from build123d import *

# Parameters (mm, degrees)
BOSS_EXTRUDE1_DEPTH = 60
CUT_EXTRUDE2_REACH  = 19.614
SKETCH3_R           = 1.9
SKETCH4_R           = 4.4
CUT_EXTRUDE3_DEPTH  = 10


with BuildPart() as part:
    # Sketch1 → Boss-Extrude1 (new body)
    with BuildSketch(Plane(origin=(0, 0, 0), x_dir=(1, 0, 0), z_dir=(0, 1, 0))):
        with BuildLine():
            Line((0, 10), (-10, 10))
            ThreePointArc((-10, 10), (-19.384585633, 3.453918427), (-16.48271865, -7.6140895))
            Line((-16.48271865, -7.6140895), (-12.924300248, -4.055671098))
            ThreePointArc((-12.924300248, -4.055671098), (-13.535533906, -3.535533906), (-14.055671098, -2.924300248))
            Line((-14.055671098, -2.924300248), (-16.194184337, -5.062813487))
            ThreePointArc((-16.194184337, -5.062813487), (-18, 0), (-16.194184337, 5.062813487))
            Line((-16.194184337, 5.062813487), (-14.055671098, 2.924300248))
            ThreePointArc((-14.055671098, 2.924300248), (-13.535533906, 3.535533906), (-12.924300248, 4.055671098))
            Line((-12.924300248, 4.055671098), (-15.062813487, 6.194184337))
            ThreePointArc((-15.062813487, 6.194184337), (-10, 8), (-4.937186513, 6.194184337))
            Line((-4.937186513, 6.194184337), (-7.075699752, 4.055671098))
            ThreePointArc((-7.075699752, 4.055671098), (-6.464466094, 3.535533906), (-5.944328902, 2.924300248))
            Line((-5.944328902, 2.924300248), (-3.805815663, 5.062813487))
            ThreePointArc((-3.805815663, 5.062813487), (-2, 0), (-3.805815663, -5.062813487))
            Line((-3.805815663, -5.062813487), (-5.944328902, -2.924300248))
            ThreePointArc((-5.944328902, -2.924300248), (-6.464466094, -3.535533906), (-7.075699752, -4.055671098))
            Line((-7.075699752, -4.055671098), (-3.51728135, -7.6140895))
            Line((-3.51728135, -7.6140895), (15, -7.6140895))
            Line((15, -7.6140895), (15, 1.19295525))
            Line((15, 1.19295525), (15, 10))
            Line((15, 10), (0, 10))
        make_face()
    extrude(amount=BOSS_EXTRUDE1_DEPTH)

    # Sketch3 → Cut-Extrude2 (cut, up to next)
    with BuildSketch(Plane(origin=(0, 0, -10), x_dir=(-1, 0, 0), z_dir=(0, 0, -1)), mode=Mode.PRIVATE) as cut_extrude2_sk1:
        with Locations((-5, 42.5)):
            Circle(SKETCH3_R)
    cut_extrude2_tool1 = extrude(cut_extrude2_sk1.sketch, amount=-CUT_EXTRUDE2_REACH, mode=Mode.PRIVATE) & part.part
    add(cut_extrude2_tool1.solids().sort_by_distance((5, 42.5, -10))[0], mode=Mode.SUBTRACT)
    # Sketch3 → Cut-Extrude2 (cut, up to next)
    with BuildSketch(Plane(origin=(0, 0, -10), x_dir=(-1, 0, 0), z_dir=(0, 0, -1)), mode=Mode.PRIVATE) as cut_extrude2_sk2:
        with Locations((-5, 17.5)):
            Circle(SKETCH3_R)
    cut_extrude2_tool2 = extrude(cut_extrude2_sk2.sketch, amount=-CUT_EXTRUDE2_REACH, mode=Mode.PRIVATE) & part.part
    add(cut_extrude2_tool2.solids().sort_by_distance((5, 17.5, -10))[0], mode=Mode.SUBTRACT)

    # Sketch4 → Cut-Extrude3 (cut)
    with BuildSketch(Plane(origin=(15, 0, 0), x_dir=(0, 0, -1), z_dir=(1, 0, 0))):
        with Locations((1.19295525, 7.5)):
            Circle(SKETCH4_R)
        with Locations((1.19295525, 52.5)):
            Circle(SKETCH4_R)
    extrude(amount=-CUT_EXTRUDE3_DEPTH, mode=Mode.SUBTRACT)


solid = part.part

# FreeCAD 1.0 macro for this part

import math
import FreeCAD as App
import Part
import Sketcher
from FreeCAD import Vector

doc = App.newDocument("Part")
body = doc.addObject("PartDesign::Body", "Body")

# Sketch on XZ plane
sketch1 = doc.addObject("Sketcher::SketchObject", "Sketch")
body.addObject(sketch1)
sketch1.AttachmentSupport = (doc.XZ_Plane, [""])
sketch1.MapMode = "FlatFace"
sketch1.addGeometry([
    Part.ArcOfCircle(Part.Circle(Vector(-10, 0, 0), Vector(0, 0, 1), 10), math.radians(130.411434), math.radians(270)),  # 0
    Part.LineSegment(Vector(-16.482719, 7.61409, 0), Vector(-12.9243, 4.055671, 0)),  # 1
    Part.ArcOfCircle(Part.Circle(Vector(-10, 0, 0), Vector(0, 0, 1), 5), math.radians(125.793104), math.radians(144.206896)),  # 2
    Part.LineSegment(Vector(-14.055671, 2.9243, 0), Vector(-16.194184, 5.062813, 0)),  # 3
    Part.ArcOfCircle(Part.Circle(Vector(-10, 0, 0), Vector(0, 0, 1), 8), math.radians(140.73917), math.radians(219.26083)),  # 4
    Part.LineSegment(Vector(-16.194184, -5.062813, 0), Vector(-14.055671, -2.9243, 0)),  # 5
    Part.ArcOfCircle(Part.Circle(Vector(-10, 0, 0), Vector(0, 0, 1), 5), math.radians(-144.206896), math.radians(-125.793104)),  # 6
    Part.LineSegment(Vector(-12.9243, -4.055671, 0), Vector(-15.062813, -6.194184, 0)),  # 7
    Part.ArcOfCircle(Part.Circle(Vector(-10, 0, 0), Vector(0, 0, 1), 8), math.radians(-129.26083), math.radians(-50.73917)),  # 8
    Part.LineSegment(Vector(-4.937187, -6.194184, 0), Vector(-7.0757, -4.055671, 0)),  # 9
    Part.ArcOfCircle(Part.Circle(Vector(-10, 0, 0), Vector(0, 0, 1), 5), math.radians(-54.206896), math.radians(-35.793104)),  # 10
    Part.LineSegment(Vector(-5.944329, -2.9243, 0), Vector(-3.805816, -5.062813, 0)),  # 11
    Part.ArcOfCircle(Part.Circle(Vector(-10, 0, 0), Vector(0, 0, 1), 8), math.radians(-39.26083), math.radians(39.26083)),  # 12
    Part.LineSegment(Vector(-3.805816, 5.062813, 0), Vector(-5.944329, 2.9243, 0)),  # 13
    Part.ArcOfCircle(Part.Circle(Vector(-10, 0, 0), Vector(0, 0, 1), 5), math.radians(35.793104), math.radians(54.206896)),  # 14
    Part.LineSegment(Vector(-7.0757, 4.055671, 0), Vector(-3.517281, 7.61409, 0)),  # 15
    Part.LineSegment(Vector(-3.517281, 7.61409, 0), Vector(15, 7.61409, 0)),  # 16
    Part.LineSegment(Vector(15, 7.61409, 0), Vector(15, -10, 0)),  # 17
    Part.LineSegment(Vector(15, -10, 0), Vector(-10, -10, 0)),  # 18
], False)
sketch1.addConstraint([
    Sketcher.Constraint("Coincident", 0, 1, 1, 1),
    Sketcher.Constraint("Coincident", 1, 2, 2, 1),
    Sketcher.Constraint("Coincident", 2, 2, 3, 1),
    Sketcher.Constraint("Coincident", 3, 2, 4, 1),
    Sketcher.Constraint("Coincident", 4, 2, 5, 1),
    Sketcher.Constraint("Coincident", 5, 2, 6, 1),
    Sketcher.Constraint("Coincident", 6, 2, 7, 1),
    Sketcher.Constraint("Coincident", 7, 2, 8, 1),
    Sketcher.Constraint("Coincident", 8, 2, 9, 1),
    Sketcher.Constraint("Coincident", 9, 2, 10, 1),
    Sketcher.Constraint("Coincident", 10, 2, 11, 1),
    Sketcher.Constraint("Coincident", 11, 2, 12, 1),
    Sketcher.Constraint("Coincident", 12, 2, 13, 1),
    Sketcher.Constraint("Coincident", 13, 2, 14, 1),
    Sketcher.Constraint("Coincident", 14, 2, 15, 1),
    Sketcher.Constraint("Coincident", 15, 2, 16, 1),
    Sketcher.Constraint("Coincident", 16, 2, 17, 1),
    Sketcher.Constraint("Coincident", 17, 2, 18, 1),
    Sketcher.Constraint("Tangent", 18, 2, 0, 2),
    Sketcher.Constraint("Horizontal", 16),
    Sketcher.Constraint("Vertical", 17),
    Sketcher.Constraint("Horizontal", 18),
    Sketcher.Constraint("Coincident", 2, 3, 0, 3),
    Sketcher.Constraint("Coincident", 4, 3, 0, 3),
    Sketcher.Constraint("Coincident", 6, 3, 0, 3),
    Sketcher.Constraint("Coincident", 8, 3, 0, 3),
    Sketcher.Constraint("Coincident", 10, 3, 0, 3),
    Sketcher.Constraint("Coincident", 12, 3, 0, 3),
    Sketcher.Constraint("Coincident", 14, 3, 0, 3),
    Sketcher.Constraint("Equal", 2, 6),
    Sketcher.Constraint("Equal", 4, 8),
    Sketcher.Constraint("Equal", 6, 10),
    Sketcher.Constraint("Equal", 8, 12),
    Sketcher.Constraint("Equal", 10, 14),
    Sketcher.Constraint("Symmetric", 3, 2, 4, 2, -1),
    Sketcher.Constraint("Parallel", 1, 3),
    Sketcher.Constraint("Perpendicular", 3, 5),
    Sketcher.Constraint("Parallel", 5, 7),
    Sketcher.Constraint("Perpendicular", 7, 9),
    Sketcher.Constraint("Parallel", 9, 11),
    Sketcher.Constraint("Perpendicular", 11, 13),
    Sketcher.Constraint("Parallel", 13, 15),
    Sketcher.Constraint("Horizontal", 7, 2, 8, 2),
    Sketcher.Constraint("Horizontal", 6, 2, 9, 2),
    Sketcher.Constraint("Horizontal", 5, 2, 10, 2),
    Sketcher.Constraint("Horizontal", 3, 2, 12, 2),
    Sketcher.Constraint("Horizontal", 1, 2, 14, 2),
    Sketcher.Constraint("Horizontal", 0, 1, 15, 2),
    Sketcher.Constraint("Vertical", 1, 2, 6, 2),
    Sketcher.Constraint("Equal", 5, 7),
    Sketcher.Constraint("Radius", 0, 10.0),
    Sketcher.Constraint("Radius", 2, 5.0),
    Sketcher.Constraint("Radius", 4, 8.0),
    Sketcher.Constraint("DistanceX", 18, 2, 18, 1, 25.0),
    Sketcher.Constraint("DistanceX", 0, 3, -1, 1, 10.0),
    Sketcher.Constraint("DistanceX", 16, 1, 16, 2, 18.517281),
])
pad1 = doc.addObject("PartDesign::Pad", "Pad")
body.addObject(pad1)
pad1.Profile = sketch1
pad1.Length = 60
pad1.Reversed = True

# Sketch on XY plane
sketch2 = doc.addObject("Sketcher::SketchObject", "Sketch001")
body.addObject(sketch2)
sketch2.AttachmentSupport = (doc.XY_Plane, [""])
sketch2.MapMode = "FlatFace"
sketch2.AttachmentOffset = App.Placement(Vector(0, 0, -10), App.Rotation())
sketch2.addGeometry(Part.Circle(Vector(5, 42.5, 0), Vector(0, 0, 1), 1.9), False)
sketch2.addConstraint([
    Sketcher.Constraint("Diameter", 0, 3.8),
    Sketcher.Constraint("DistanceX", -1, 1, 0, 3, 5.0),
    Sketcher.Constraint("DistanceY", -1, 1, 0, 3, 42.5),
])
pocket1 = doc.addObject("PartDesign::Pocket", "Pocket")
body.addObject(pocket1)
pocket1.Profile = sketch2
pocket1.Type = "UpToFirst"
pocket1.Reversed = True

# Sketch on XY plane
sketch3 = doc.addObject("Sketcher::SketchObject", "Sketch002")
body.addObject(sketch3)
sketch3.AttachmentSupport = (doc.XY_Plane, [""])
sketch3.MapMode = "FlatFace"
sketch3.AttachmentOffset = App.Placement(Vector(0, 0, -10), App.Rotation())
sketch3.addGeometry(Part.Circle(Vector(5, 17.5, 0), Vector(0, 0, 1), 1.9), False)
sketch3.addConstraint([
    Sketcher.Constraint("Diameter", 0, 3.8),
    Sketcher.Constraint("DistanceX", -1, 1, 0, 3, 5.0),
    Sketcher.Constraint("DistanceY", -1, 1, 0, 3, 17.5),
])
pocket2 = doc.addObject("PartDesign::Pocket", "Pocket001")
body.addObject(pocket2)
pocket2.Profile = sketch3
pocket2.Type = "UpToFirst"
pocket2.Reversed = True

# Sketch on YZ plane
sketch4 = doc.addObject("Sketcher::SketchObject", "Sketch003")
body.addObject(sketch4)
sketch4.AttachmentSupport = (doc.YZ_Plane, [""])
sketch4.MapMode = "FlatFace"
sketch4.AttachmentOffset = App.Placement(Vector(0, 0, 15), App.Rotation())
sketch4.addGeometry([
    Part.Circle(Vector(7.5, -1.192955, 0), Vector(0, 0, 1), 4.4),
    Part.Circle(Vector(52.5, -1.192955, 0), Vector(0, 0, 1), 4.4),
], False)
sketch4.addConstraint([
    Sketcher.Constraint("Equal", 0, 1),
    Sketcher.Constraint("Horizontal", 0, 3, 1, 3),
    Sketcher.Constraint("Diameter", 0, 8.8),
    Sketcher.Constraint("DistanceX", 0, 3, 1, 3, 45.0),
    Sketcher.Constraint("DistanceX", -1, 1, 0, 3, 7.5),
    Sketcher.Constraint("DistanceY", 0, 3, -1, 1, 1.192955),
])
pocket3 = doc.addObject("PartDesign::Pocket", "Pocket002")
body.addObject(pocket3)
pocket3.Profile = sketch4
pocket3.Length = 10

doc.recompute()
